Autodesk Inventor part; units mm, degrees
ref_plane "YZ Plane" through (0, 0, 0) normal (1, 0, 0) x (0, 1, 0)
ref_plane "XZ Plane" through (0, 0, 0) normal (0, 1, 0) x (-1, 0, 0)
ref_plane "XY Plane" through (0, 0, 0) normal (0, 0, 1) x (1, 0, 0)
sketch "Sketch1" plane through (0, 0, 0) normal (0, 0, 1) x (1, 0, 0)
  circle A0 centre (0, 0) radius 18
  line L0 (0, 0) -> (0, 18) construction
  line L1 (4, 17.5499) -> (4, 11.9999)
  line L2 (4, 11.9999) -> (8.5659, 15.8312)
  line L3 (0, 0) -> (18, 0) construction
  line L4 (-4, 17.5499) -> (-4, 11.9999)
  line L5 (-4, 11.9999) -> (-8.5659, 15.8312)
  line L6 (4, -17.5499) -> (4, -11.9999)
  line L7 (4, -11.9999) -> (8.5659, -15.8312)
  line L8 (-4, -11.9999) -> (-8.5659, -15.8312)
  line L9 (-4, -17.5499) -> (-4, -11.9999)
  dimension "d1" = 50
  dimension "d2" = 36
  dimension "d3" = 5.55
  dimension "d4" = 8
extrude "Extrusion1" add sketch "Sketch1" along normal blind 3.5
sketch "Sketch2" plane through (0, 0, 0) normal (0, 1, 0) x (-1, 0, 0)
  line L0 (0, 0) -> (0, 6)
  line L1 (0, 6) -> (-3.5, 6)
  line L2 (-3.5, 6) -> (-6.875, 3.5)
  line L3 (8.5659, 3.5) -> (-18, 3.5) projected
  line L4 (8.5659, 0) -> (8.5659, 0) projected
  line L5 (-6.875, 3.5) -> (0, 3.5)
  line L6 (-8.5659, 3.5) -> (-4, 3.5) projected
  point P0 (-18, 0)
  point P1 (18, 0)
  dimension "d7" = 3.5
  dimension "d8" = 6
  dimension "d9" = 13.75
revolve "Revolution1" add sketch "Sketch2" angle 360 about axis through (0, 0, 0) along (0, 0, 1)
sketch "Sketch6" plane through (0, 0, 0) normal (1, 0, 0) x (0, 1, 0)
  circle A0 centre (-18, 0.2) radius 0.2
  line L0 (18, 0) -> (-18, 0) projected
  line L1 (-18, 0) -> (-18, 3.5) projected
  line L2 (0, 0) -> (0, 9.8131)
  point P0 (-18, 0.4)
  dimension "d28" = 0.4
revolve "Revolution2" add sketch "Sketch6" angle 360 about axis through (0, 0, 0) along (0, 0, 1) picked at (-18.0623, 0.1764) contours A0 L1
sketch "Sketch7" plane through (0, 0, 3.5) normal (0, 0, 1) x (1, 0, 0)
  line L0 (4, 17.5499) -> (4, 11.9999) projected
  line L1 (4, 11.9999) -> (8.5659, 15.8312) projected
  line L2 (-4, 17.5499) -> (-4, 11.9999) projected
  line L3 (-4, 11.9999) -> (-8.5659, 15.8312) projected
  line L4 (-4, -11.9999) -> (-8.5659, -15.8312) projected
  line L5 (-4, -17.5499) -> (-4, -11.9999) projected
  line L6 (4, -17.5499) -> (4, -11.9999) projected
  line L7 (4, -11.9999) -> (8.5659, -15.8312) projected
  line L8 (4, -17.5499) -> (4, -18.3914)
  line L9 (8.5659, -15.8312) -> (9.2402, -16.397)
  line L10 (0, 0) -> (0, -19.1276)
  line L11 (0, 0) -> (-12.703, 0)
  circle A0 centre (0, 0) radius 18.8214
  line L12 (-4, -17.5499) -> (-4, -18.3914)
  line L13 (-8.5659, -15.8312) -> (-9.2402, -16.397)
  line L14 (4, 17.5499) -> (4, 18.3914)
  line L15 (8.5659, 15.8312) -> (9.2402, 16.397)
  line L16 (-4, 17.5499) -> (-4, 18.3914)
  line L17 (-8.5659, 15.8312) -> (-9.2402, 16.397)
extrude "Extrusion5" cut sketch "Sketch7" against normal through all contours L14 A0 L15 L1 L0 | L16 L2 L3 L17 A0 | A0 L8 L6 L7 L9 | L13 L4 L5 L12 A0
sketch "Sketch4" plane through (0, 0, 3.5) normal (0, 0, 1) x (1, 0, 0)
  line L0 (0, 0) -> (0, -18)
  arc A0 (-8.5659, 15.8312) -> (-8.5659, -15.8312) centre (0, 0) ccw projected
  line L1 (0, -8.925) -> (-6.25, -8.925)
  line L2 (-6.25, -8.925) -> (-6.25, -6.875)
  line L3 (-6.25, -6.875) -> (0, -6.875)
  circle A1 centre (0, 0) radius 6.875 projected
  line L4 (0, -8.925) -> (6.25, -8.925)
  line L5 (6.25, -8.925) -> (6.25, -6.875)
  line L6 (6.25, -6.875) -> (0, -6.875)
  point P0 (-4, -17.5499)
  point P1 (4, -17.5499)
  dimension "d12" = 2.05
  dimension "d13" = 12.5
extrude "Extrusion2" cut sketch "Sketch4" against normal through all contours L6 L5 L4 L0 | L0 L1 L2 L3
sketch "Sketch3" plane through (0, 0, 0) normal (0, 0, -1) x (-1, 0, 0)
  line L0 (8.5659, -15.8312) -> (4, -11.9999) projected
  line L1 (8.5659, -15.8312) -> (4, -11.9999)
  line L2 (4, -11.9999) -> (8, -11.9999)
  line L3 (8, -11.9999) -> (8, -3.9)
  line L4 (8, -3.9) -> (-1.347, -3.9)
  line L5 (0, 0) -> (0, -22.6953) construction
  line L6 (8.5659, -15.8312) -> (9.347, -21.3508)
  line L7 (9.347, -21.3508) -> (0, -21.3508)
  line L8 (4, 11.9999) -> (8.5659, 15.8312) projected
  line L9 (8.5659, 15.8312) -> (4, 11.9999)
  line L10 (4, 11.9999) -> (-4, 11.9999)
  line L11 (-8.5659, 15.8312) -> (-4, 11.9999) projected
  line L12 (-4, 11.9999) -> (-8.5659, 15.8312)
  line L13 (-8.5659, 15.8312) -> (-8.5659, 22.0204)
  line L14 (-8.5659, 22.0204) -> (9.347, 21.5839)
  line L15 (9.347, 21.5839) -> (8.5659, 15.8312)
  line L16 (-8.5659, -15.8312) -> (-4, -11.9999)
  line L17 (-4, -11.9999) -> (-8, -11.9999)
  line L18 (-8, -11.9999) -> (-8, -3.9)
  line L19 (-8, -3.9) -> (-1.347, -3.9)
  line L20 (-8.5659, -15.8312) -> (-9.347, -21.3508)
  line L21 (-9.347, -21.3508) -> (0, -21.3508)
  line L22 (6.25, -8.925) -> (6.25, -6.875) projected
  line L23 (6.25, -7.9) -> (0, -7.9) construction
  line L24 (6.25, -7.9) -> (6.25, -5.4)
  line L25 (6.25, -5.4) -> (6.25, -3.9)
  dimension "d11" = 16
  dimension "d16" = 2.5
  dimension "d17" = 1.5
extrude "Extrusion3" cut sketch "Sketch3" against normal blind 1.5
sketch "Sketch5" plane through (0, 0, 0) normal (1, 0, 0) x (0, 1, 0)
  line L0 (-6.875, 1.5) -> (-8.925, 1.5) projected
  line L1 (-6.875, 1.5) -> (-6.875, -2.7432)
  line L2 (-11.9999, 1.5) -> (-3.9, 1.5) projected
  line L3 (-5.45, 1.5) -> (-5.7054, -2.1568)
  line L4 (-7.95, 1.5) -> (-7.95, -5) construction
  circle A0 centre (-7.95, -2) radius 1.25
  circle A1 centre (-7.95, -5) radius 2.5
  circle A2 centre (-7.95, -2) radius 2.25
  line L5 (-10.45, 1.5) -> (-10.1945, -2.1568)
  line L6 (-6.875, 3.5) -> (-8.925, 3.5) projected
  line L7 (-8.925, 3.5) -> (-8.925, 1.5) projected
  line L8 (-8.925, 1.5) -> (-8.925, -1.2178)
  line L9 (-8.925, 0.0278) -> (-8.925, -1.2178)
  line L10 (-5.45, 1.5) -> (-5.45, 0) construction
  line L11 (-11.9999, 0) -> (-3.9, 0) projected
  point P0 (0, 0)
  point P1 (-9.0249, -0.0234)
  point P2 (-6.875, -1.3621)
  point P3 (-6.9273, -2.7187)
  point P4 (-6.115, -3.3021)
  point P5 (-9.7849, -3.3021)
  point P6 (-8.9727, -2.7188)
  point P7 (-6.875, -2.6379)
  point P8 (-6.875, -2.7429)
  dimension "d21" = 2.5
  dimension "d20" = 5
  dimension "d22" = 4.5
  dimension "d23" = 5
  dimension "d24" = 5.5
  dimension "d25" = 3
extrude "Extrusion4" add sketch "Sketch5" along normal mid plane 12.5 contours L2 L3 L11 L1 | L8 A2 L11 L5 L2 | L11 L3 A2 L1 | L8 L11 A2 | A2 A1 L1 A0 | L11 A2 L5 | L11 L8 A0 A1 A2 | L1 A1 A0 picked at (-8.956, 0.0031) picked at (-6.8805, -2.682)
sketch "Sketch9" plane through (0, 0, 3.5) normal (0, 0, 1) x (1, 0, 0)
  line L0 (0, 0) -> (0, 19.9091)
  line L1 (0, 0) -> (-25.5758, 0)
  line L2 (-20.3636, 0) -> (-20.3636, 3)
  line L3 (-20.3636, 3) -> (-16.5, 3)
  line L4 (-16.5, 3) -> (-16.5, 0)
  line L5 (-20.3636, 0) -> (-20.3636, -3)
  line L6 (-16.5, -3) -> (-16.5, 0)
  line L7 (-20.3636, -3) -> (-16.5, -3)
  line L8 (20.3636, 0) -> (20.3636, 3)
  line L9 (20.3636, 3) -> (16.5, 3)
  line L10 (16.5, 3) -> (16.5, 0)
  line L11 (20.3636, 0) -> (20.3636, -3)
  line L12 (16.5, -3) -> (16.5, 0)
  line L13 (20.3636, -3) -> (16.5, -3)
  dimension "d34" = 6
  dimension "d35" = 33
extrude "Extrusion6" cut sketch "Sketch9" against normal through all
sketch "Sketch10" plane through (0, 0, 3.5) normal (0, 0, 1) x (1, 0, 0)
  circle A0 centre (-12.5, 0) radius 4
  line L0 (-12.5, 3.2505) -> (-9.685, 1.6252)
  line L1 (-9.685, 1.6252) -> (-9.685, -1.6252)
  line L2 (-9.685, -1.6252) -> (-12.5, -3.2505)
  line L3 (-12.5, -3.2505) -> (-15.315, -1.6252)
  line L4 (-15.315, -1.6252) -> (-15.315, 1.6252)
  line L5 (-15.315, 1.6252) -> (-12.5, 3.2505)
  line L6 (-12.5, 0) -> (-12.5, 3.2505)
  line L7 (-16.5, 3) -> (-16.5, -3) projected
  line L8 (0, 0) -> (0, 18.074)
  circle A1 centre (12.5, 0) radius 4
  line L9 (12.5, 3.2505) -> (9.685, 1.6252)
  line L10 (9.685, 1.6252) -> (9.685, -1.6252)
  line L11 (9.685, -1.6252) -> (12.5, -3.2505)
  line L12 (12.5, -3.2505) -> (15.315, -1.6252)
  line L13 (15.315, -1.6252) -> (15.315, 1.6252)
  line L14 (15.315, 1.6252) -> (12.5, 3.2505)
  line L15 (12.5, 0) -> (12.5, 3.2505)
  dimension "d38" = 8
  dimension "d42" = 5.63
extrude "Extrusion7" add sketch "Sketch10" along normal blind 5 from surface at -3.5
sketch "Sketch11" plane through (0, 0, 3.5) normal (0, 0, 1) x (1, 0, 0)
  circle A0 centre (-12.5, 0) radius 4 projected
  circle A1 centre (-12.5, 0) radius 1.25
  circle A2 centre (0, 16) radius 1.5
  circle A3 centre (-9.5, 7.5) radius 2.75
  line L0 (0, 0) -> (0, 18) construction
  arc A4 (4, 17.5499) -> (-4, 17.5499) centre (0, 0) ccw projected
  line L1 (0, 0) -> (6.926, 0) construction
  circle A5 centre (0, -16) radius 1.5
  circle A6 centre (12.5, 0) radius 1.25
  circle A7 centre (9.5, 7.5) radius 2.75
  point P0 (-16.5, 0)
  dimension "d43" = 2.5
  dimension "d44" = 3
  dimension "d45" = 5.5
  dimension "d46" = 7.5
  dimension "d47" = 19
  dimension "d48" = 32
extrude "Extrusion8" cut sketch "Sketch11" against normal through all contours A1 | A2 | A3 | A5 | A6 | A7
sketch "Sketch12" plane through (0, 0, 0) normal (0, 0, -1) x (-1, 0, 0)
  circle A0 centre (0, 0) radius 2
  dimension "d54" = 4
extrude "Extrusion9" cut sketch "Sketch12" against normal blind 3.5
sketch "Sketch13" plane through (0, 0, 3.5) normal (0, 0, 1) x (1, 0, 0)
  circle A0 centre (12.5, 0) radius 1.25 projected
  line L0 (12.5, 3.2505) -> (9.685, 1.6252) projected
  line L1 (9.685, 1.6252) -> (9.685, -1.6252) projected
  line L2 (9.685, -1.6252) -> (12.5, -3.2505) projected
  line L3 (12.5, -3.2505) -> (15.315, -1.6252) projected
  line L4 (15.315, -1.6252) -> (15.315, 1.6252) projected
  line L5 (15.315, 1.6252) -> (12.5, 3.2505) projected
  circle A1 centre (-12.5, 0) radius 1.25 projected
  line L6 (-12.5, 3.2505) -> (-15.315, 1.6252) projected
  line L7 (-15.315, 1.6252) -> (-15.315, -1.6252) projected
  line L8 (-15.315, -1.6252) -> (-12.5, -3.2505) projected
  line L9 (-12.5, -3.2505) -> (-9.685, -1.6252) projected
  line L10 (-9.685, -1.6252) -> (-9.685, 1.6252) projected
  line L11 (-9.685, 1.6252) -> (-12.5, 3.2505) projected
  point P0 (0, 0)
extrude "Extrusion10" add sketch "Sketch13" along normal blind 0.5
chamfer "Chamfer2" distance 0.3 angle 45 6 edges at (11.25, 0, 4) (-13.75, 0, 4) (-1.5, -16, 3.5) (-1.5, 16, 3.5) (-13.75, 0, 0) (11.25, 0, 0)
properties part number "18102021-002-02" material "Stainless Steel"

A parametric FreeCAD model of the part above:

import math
import FreeCAD as App
import Part
import Sketcher

V = App.Vector
Q = App.Units.Quantity


def edges_at(feature, points):
    """Names of the edges that pass closest to the given points."""
    edges = feature.Shape.Edges
    near = lambda p: min(range(len(edges)), key=lambda i: edges[i].distToShape(Part.Vertex(*p))[0])
    return sorted({f"Edge{near(p) + 1}" for p in points})


def add_polygon(sketch, points):
    """Adds a closed chain of lines whose ends are joined by coincident constraints."""
    first, n = sketch.GeometryCount, len(points)
    for a, b in zip(points, points[1:] + points[:1]):
        sketch.addGeometry(Part.LineSegment(App.Vector(*a, 0), App.Vector(*b, 0)), False)
    for i in range(n):
        sketch.addConstraint(Sketcher.Constraint("Coincident", first + i, 2, first + (i + 1) % n, 1))

doc = App.newDocument("Part")
params = doc.addObject("Spreadsheet::Sheet", "Params")
for row, (alias, value) in enumerate([
    ("sketch1_diameter", "36 mm"),
    ("pad1_length", "3.5 mm"),
    ("sketch2_width", "3.5 mm"),
    ("sketch2_length", "4.2 mm"),
    ("revolution_angle", "360 deg"),
    ("sketch3_radius", "0.2 mm"),
    ("revolution2_angle", "360 deg"),
    ("sketch5_width", "12.5 mm"),
    ("sketch5_height", "2.05 mm"),
    ("sketch6_width", "16 mm"),
    ("sketch6_width2", "4 mm"),
    ("sketch6_height", "8.1 mm"),
    ("pocket3_length", "1.5 mm"),
    ("sketch7_radius", "2.5 mm"),
    ("sketch7_radius2", "1.25 mm"),
    ("sketch7_radius3", "2.25 mm"),
    ("pad2_length", "12.5 mm"),
    ("sketch8_height", "6 mm"),
    ("sketch9_diameter", "8 mm"),
    ("pad3_length", "5 mm"),
    ("sketch10_diameter", "3 mm"),
    ("sketch10_diameter2", "2.5 mm"),
    ("sketch10_diameter3", "5.5 mm"),
    ("sketch11_diameter", "4 mm"),
    ("pocket6_length", "3.5 mm"),
    ("sketch12_diameter", "2.5 mm"),
    ("pad4_length", "0.5 mm"),
    ("chamfer_size", "0.3 mm"),
], start=1):
    params.set(f"A{row}", alias)
    params.set(f"B{row}", "=" + value)
    params.setAlias(f"B{row}", alias)

body = doc.addObject("PartDesign::Body", "Body")

# Sketch on XY plane
sketch1 = body.newObject("Sketcher::SketchObject", "Sketch")
sketch1.AttachmentSupport = (doc.getObject("XY_Plane"), [""])
sketch1.MapMode = "FlatFace"
sketch1.addGeometry(Part.Circle(V(0, 0, 0), V(0, 0, 1), 18), False)
sketch1.addConstraint(Sketcher.Constraint("Coincident", 0, 3, -1, 1))
sketch1.addConstraint(Sketcher.Constraint("Diameter", 0, Q("36 mm")))
sketch1.setExpression("Constraints[1]", "Params.sketch1_diameter")
pad1 = body.newObject("PartDesign::Pad", "Pad")
pad1.Profile = sketch1
pad1.setExpression("Length", "Params.pad1_length")

# Sketch on XZ plane
sketch2 = body.newObject("Sketcher::SketchObject", "Sketch001")
sketch2.AttachmentSupport = (doc.getObject("XZ_Plane"), [""])
sketch2.MapMode = "FlatFace"
add_polygon(sketch2, [(6.9, 3.5), (0, 3.5), (0, 6), (3.5, 6)])  # lines 0-3
sketch2.addConstraint(Sketcher.Constraint("Horizontal", 0))
sketch2.addConstraint(Sketcher.Constraint("Vertical", 1))
sketch2.addConstraint(Sketcher.Constraint("Horizontal", 2))
sketch2.addConstraint(Sketcher.Constraint("PointOnObject", 0, 2, -2))
sketch2.addConstraint(Sketcher.Constraint("DistanceX", 2, 1, 2, 2, Q("3.5 mm")))
sketch2.addConstraint(Sketcher.Constraint("DistanceY", -1, 1, 1, 2, Q("6 mm")))
sketch2.addConstraint(Sketcher.Constraint("DistanceY", -1, 1, 0, 2, Q("3.5 mm")))
sketch2.addConstraint(Sketcher.Constraint("Distance", 3, Q("4.2 mm")))
sketch2.setExpression("Constraints[8]", "Params.sketch2_width")
sketch2.setExpression("Constraints[11]", "Params.sketch2_length")
revolution = body.newObject("PartDesign::Revolution", "Revolution")
revolution.Profile = sketch2
revolution.ReferenceAxis = (sketch2, ["V_Axis"])
revolution.setExpression("Angle", "Params.revolution_angle")

# Sketch on YZ plane
sketch3 = body.newObject("Sketcher::SketchObject", "Sketch002")
sketch3.AttachmentSupport = (doc.getObject("YZ_Plane"), [""])
sketch3.MapMode = "FlatFace"
sketch3.addGeometry(Part.ArcOfCircle(Part.Circle(V(-18, 0.2, 0), V(0, 0, 1), 0.2), math.radians(90), math.radians(270)), False)
sketch3.addGeometry(Part.LineSegment(V(-18, 0, 0), V(-18, 0.4, 0)), False)
sketch3.addConstraint(Sketcher.Constraint("Coincident", 0, 1, 1, 2))
sketch3.addConstraint(Sketcher.Constraint("Coincident", 1, 1, 0, 2))
sketch3.addConstraint(Sketcher.Constraint("Vertical", 1))
sketch3.addConstraint(Sketcher.Constraint("PointOnObject", 1, 1, -1))
sketch3.addConstraint(Sketcher.Constraint("Radius", 0, Q("0.2 mm")))
sketch3.addConstraint(Sketcher.Constraint("DistanceX", 0, 3, -1, 1, Q("18 mm")))
sketch3.addConstraint(Sketcher.Constraint("DistanceX", 0, 1, -1, 1, Q("18 mm")))
sketch3.setExpression("Constraints[4]", "Params.sketch3_radius")
revolution2 = body.newObject("PartDesign::Revolution", "Revolution001")
revolution2.Profile = sketch3
revolution2.ReferenceAxis = (sketch3, ["V_Axis"])
revolution2.setExpression("Angle", "Params.revolution2_angle")

# Sketch on XY plane
sketch4 = body.newObject("Sketcher::SketchObject", "Sketch003")
sketch4.AttachmentSupport = (doc.getObject("XY_Plane"), [""])
sketch4.MapMode = "FlatFace"
sketch4.AttachmentOffset = App.Placement(V(0, 0, 3.5), App.Rotation())
sketch4.addGeometry(Part.LineSegment(V(4, 18.4, 0), V(4, 12, 0)), False)
sketch4.addGeometry(Part.LineSegment(V(4, 12, 0), V(8.6, 15.8, 0)), False)
sketch4.addGeometry(Part.LineSegment(V(8.6, 15.8, 0), V(9.2, 16.4, 0)), False)
sketch4.addGeometry(Part.ArcOfCircle(Part.Circle(V(0, 0, 0), V(0, 0, 1), 18.8), math.radians(60.6), math.radians(77.73)), False)
sketch4.addGeometry(Part.LineSegment(V(-4, 12, 0), V(-4, 18.4, 0)), False)
sketch4.addGeometry(Part.ArcOfCircle(Part.Circle(V(0, 0, 0), V(0, 0, 1), 18.8), math.radians(102.27), math.radians(119.4)), False)
sketch4.addGeometry(Part.LineSegment(V(-9.2, 16.4, 0), V(-8.6, 15.8, 0)), False)
sketch4.addGeometry(Part.LineSegment(V(-8.6, 15.8, 0), V(-4, 12, 0)), False)
sketch4.addGeometry(Part.ArcOfCircle(Part.Circle(V(0, 0, 0), V(0, 0, 1), 18.8), math.radians(-77.73), math.radians(-60.6)), False)
sketch4.addGeometry(Part.LineSegment(V(9.2, -16.4, 0), V(8.6, -15.8, 0)), False)
sketch4.addGeometry(Part.LineSegment(V(8.6, -15.8, 0), V(4, -12, 0)), False)
sketch4.addGeometry(Part.LineSegment(V(4, -12, 0), V(4, -18.4, 0)), False)
sketch4.addGeometry(Part.LineSegment(V(-8.6, -15.8, 0), V(-9.2, -16.4, 0)), False)
sketch4.addGeometry(Part.ArcOfCircle(Part.Circle(V(0, 0, 0), V(0, 0, 1), 18.8), math.radians(-119.4), math.radians(-102.27)), False)
sketch4.addGeometry(Part.LineSegment(V(-4, -18.4, 0), V(-4, -12, 0)), False)
sketch4.addGeometry(Part.LineSegment(V(-4, -12, 0), V(-8.6, -15.8, 0)), False)
sketch4.addConstraint(Sketcher.Constraint("Coincident", 0, 2, 1, 1))
sketch4.addConstraint(Sketcher.Constraint("Coincident", 1, 2, 2, 1))
sketch4.addConstraint(Sketcher.Constraint("Coincident", 2, 2, 3, 1))
sketch4.addConstraint(Sketcher.Constraint("Coincident", 3, 2, 0, 1))
sketch4.addConstraint(Sketcher.Constraint("Coincident", 4, 2, 5, 1))
sketch4.addConstraint(Sketcher.Constraint("Coincident", 5, 2, 6, 1))
sketch4.addConstraint(Sketcher.Constraint("Coincident", 6, 2, 7, 1))
sketch4.addConstraint(Sketcher.Constraint("Coincident", 7, 2, 4, 1))
sketch4.addConstraint(Sketcher.Constraint("Coincident", 8, 2, 9, 1))
sketch4.addConstraint(Sketcher.Constraint("Coincident", 9, 2, 10, 1))
sketch4.addConstraint(Sketcher.Constraint("Coincident", 10, 2, 11, 1))
sketch4.addConstraint(Sketcher.Constraint("Coincident", 11, 2, 8, 1))
sketch4.addConstraint(Sketcher.Constraint("Coincident", 12, 2, 13, 1))
sketch4.addConstraint(Sketcher.Constraint("Coincident", 13, 2, 14, 1))
sketch4.addConstraint(Sketcher.Constraint("Coincident", 14, 2, 15, 1))
sketch4.addConstraint(Sketcher.Constraint("Coincident", 15, 2, 12, 1))
sketch4.addConstraint(Sketcher.Constraint("Vertical", 0))
sketch4.addConstraint(Sketcher.Constraint("Vertical", 4))
sketch4.addConstraint(Sketcher.Constraint("Vertical", 11))
sketch4.addConstraint(Sketcher.Constraint("Vertical", 14))
sketch4.addConstraint(Sketcher.Constraint("Coincident", 3, 3, -1, 1))
sketch4.addConstraint(Sketcher.Constraint("Coincident", 5, 3, -1, 1))
sketch4.addConstraint(Sketcher.Constraint("Coincident", 8, 3, -1, 1))
sketch4.addConstraint(Sketcher.Constraint("Coincident", 13, 3, -1, 1))
sketch4.addConstraint(Sketcher.Constraint("Equal", 3, 5))
sketch4.addConstraint(Sketcher.Constraint("Equal", 5, 8))
sketch4.addConstraint(Sketcher.Constraint("Equal", 8, 13))
sketch4.addConstraint(Sketcher.Constraint("Symmetric", 6, 2, 9, 2, -1, 1))
sketch4.addConstraint(Sketcher.Constraint("Symmetric", 7, 2, 10, 2, -1, 1))
sketch4.addConstraint(Sketcher.Constraint("Symmetric", 0, 2, 14, 2, -1, 1))
sketch4.addConstraint(Sketcher.Constraint("Symmetric", 1, 2, 15, 2, -1, 1))
sketch4.addConstraint(Sketcher.Constraint("Symmetric", 1, 2, 6, 2, -2))
sketch4.addConstraint(Sketcher.Constraint("Symmetric", 0, 2, 7, 2, -2))
sketch4.addConstraint(Sketcher.Constraint("Parallel", 1, 2))
sketch4.addConstraint(Sketcher.Constraint("Parallel", 6, 7))
sketch4.addConstraint(Sketcher.Constraint("Parallel", 7, 9))
sketch4.addConstraint(Sketcher.Constraint("Parallel", 2, 12))
sketch4.addConstraint(Sketcher.Constraint("Angle", 1, Q("40.0004 deg")))
sketch4.addConstraint(Sketcher.Constraint("DistanceX", -1, 1, 0, 2, Q("4 mm")))
sketch4.addConstraint(Sketcher.Constraint("DistanceY", -1, 1, 0, 2, Q("12 mm")))
sketch4.addConstraint(Sketcher.Constraint("Radius", 3, Q("18.8214 mm")))
sketch4.addConstraint(Sketcher.Constraint("DistanceX", -1, 1, 1, 2, Q("8.566 mm")))
pocket1 = body.newObject("PartDesign::Pocket", "Pocket")
pocket1.Profile = sketch4
pocket1.Type = "ThroughAll"

# Sketch on XY plane
sketch5 = body.newObject("Sketcher::SketchObject", "Sketch004")
sketch5.AttachmentSupport = (doc.getObject("XY_Plane"), [""])
sketch5.MapMode = "FlatFace"
sketch5.AttachmentOffset = App.Placement(V(0, 0, 3.5), App.Rotation())
add_polygon(sketch5, [(6.2, -6.9), (-6.2, -6.9), (-6.2, -8.9), (6.2, -8.9)])  # lines 0-3
sketch5.addConstraint(Sketcher.Constraint("Horizontal", 0))
sketch5.addConstraint(Sketcher.Constraint("Vertical", 1))
sketch5.addConstraint(Sketcher.Constraint("Horizontal", 2))
sketch5.addConstraint(Sketcher.Constraint("Vertical", 3))
sketch5.addConstraint(Sketcher.Constraint("DistanceX", 0, 2, 0, 1, Q("12.5 mm")))
sketch5.addConstraint(Sketcher.Constraint("DistanceY", 1, 2, 1, 1, Q("2.05 mm")))
sketch5.addConstraint(Sketcher.Constraint("DistanceX", 0, 2, -1, 1, Q("6.25 mm")))
sketch5.addConstraint(Sketcher.Constraint("DistanceY", 0, 2, -1, 1, Q("6.875 mm")))
sketch5.setExpression("Constraints[8]", "Params.sketch5_width")
sketch5.setExpression("Constraints[9]", "Params.sketch5_height")
pocket2 = body.newObject("PartDesign::Pocket", "Pocket001")
pocket2.Profile = sketch5
pocket2.Type = "ThroughAll"

# Sketch on XY plane
sketch6 = body.newObject("Sketcher::SketchObject", "Sketch005")
sketch6.AttachmentSupport = (doc.getObject("XY_Plane"), [""])
sketch6.MapMode = "FlatFace"
add_polygon(sketch6, [(-9.3, -21.4), (-8.6, -15.8), (-4, -12), (-8, -12), (-8, -3.9), (8, -3.9), (8, -12), (4, -12), (8.6, -15.8), (9.3, -21.4)])  # lines 0-9
add_polygon(sketch6, [(4, 12), (-4, 12), (-8.6, 15.8), (-9.3, 21.6), (8.6, 22), (8.6, 15.8)])  # lines 10-15
sketch6.addConstraint(Sketcher.Constraint("Horizontal", 2))
sketch6.addConstraint(Sketcher.Constraint("Vertical", 3))
sketch6.addConstraint(Sketcher.Constraint("Horizontal", 4))
sketch6.addConstraint(Sketcher.Constraint("Vertical", 5))
sketch6.addConstraint(Sketcher.Constraint("Horizontal", 6))
sketch6.addConstraint(Sketcher.Constraint("Horizontal", 9))
sketch6.addConstraint(Sketcher.Constraint("Horizontal", 10))
sketch6.addConstraint(Sketcher.Constraint("Vertical", 14))
sketch6.addConstraint(Sketcher.Constraint("Symmetric", 6, 2, 10, 2, -1, 1))
sketch6.addConstraint(Sketcher.Constraint("Symmetric", 7, 2, 11, 2, -1, 1))
sketch6.addConstraint(Sketcher.Constraint("Symmetric", 0, 2, 14, 2, -1, 1))
sketch6.addConstraint(Sketcher.Constraint("Symmetric", 1, 2, 15, 2, -1, 1))
sketch6.addConstraint(Sketcher.Constraint("Symmetric", 0, 2, 7, 2, -2))
sketch6.addConstraint(Sketcher.Constraint("Vertical", 1, 2, 10, 2))
sketch6.addConstraint(Sketcher.Constraint("Vertical", 9, 2, 12, 2))
sketch6.addConstraint(Sketcher.Constraint("Equal", 2, 6))
sketch6.addConstraint(Sketcher.Constraint("Equal", 0, 8))
sketch6.addConstraint(Sketcher.Constraint("DistanceX", 4, 1, 4, 2, Q("16 mm")))
sketch6.addConstraint(Sketcher.Constraint("DistanceX", 2, 2, 2, 1, Q("4 mm")))
sketch6.addConstraint(Sketcher.Constraint("Angle", 1, Q("40.0004 deg")))
sketch6.addConstraint(Sketcher.Constraint("DistanceY", 3, 1, 3, 2, Q("8.1 mm")))
sketch6.addConstraint(Sketcher.Constraint("DistanceY", 1, 2, -1, 1, Q("12 mm")))
sketch6.addConstraint(Sketcher.Constraint("DistanceX", 9, 2, 9, 1, Q("18.694 mm")))
sketch6.addConstraint(Sketcher.Constraint("DistanceY", 14, 2, 14, 1, Q("6.1892 mm")))
sketch6.addConstraint(Sketcher.Constraint("DistanceX", 0, 2, -1, 1, Q("8.566 mm")))
sketch6.addConstraint(Sketcher.Constraint("DistanceY", -1, 1, 12, 2, Q("21.584 mm")))
sketch6.addConstraint(Sketcher.Constraint("DistanceY", 8, 2, 5, 2, Q("9.351 mm")))
sketch6.setExpression("Constraints[33]", "Params.sketch6_width")
sketch6.setExpression("Constraints[34]", "Params.sketch6_width2")
sketch6.setExpression("Constraints[36]", "Params.sketch6_height")
pocket3 = body.newObject("PartDesign::Pocket", "Pocket002")
pocket3.Profile = sketch6
pocket3.setExpression("Length", "Params.pocket3_length")
pocket3.Reversed = True

# Sketch on YZ plane
sketch7 = body.newObject("Sketcher::SketchObject", "Sketch006")
sketch7.AttachmentSupport = (doc.getObject("YZ_Plane"), [""])
sketch7.MapMode = "FlatFace"
sketch7.addGeometry(Part.LineSegment(V(-5.5, 1.5, 0), V(-6.9, 1.5, 0)), False)
sketch7.addGeometry(Part.LineSegment(V(-6.9, 1.5, 0), V(-6.9, -1.4, 0)), False)
sketch7.addGeometry(Part.ArcOfCircle(Part.Circle(V(-8, -2, 0), V(0, 0, 1), 1.2), math.radians(-35), math.radians(31)), False)
sketch7.addGeometry(Part.ArcOfCircle(Part.Circle(V(-8, -5, 0), V(0, 0, 1), 2.5), math.radians(43), math.radians(66)), False)
sketch7.addGeometry(Part.ArcOfCircle(Part.Circle(V(-8, -2, 0), V(0, 0, 1), 2.2), math.radians(-35), math.radians(-4)), False)
sketch7.addGeometry(Part.LineSegment(V(-5.7, -2.2, 0), V(-5.5, 1.5, 0)), False)
sketch7.addGeometry(Part.LineSegment(V(-8.9, 1.5, 0), V(-10.4, 1.5, 0)), False)
sketch7.addGeometry(Part.LineSegment(V(-10.4, 1.5, 0), V(-10.2, -2.2, 0)), False)
sketch7.addGeometry(Part.ArcOfCircle(Part.Circle(V(-8, -2, 0), V(0, 0, 1), 2.2), math.radians(-176), math.radians(-145)), False)
sketch7.addGeometry(Part.ArcOfCircle(Part.Circle(V(-8, -5, 0), V(0, 0, 1), 2.5), math.radians(114), math.radians(137)), False)
sketch7.addGeometry(Part.ArcOfCircle(Part.Circle(V(-8, -2, 0), V(0, 0, 1), 1.2), math.radians(141), math.radians(215)), False)
sketch7.addGeometry(Part.LineSegment(V(-8.9, -1.2, 0), V(-8.9, 1.5, 0)), False)
sketch7.addConstraint(Sketcher.Constraint("Coincident", 0, 2, 1, 1))
sketch7.addConstraint(Sketcher.Constraint("Coincident", 1, 2, 2, 2))
sketch7.addConstraint(Sketcher.Constraint("Coincident", 2, 1, 3, 2))
sketch7.addConstraint(Sketcher.Constraint("Coincident", 3, 1, 4, 1))
sketch7.addConstraint(Sketcher.Constraint("Tangent", 4, 2, 5, 1))
sketch7.addConstraint(Sketcher.Constraint("Coincident", 5, 2, 0, 1))
sketch7.addConstraint(Sketcher.Constraint("Coincident", 6, 2, 7, 1))
sketch7.addConstraint(Sketcher.Constraint("Tangent", 7, 2, 8, 1))
sketch7.addConstraint(Sketcher.Constraint("Coincident", 8, 2, 9, 2))
sketch7.addConstraint(Sketcher.Constraint("Coincident", 9, 1, 10, 2))
sketch7.addConstraint(Sketcher.Constraint("Coincident", 10, 1, 11, 1))
sketch7.addConstraint(Sketcher.Constraint("Coincident", 11, 2, 6, 1))
sketch7.addConstraint(Sketcher.Constraint("Horizontal", 0))
sketch7.addConstraint(Sketcher.Constraint("Vertical", 1))
sketch7.addConstraint(Sketcher.Constraint("Horizontal", 6))
sketch7.addConstraint(Sketcher.Constraint("Vertical", 11))
sketch7.addConstraint(Sketcher.Constraint("Coincident", 4, 3, 2, 3))
sketch7.addConstraint(Sketcher.Constraint("Coincident", 8, 3, 2, 3))
sketch7.addConstraint(Sketcher.Constraint("Coincident", 9, 3, 3, 3))
sketch7.addConstraint(Sketcher.Constraint("Coincident", 10, 3, 2, 3))
sketch7.addConstraint(Sketcher.Constraint("Equal", 4, 8))
sketch7.addConstraint(Sketcher.Constraint("Equal", 3, 9))
sketch7.addConstraint(Sketcher.Constraint("Equal", 2, 10))
sketch7.addConstraint(Sketcher.Constraint("Horizontal", 5, 2, 6, 2))
sketch7.addConstraint(Sketcher.Constraint("Horizontal", 4, 2, 7, 2))
sketch7.addConstraint(Sketcher.Constraint("Horizontal", 3, 1, 8, 2))
sketch7.addConstraint(Sketcher.Constraint("Radius", 3, Q("2.5 mm")))
sketch7.addConstraint(Sketcher.Constraint("Radius", 2, Q("1.25 mm")))
sketch7.addConstraint(Sketcher.Constraint("Radius", 4, Q("2.25 mm")))
sketch7.addConstraint(Sketcher.Constraint("DistanceY", 3, 3, -1, 1, Q("5 mm")))
sketch7.addConstraint(Sketcher.Constraint("DistanceY", 3, 3, 2, 3, Q("3 mm")))
sketch7.addConstraint(Sketcher.Constraint("DistanceX", 2, 3, 5, 2, Q("2.5 mm")))
sketch7.addConstraint(Sketcher.Constraint("DistanceY", -1, 1, 0, 2, Q("1.5 mm")))
sketch7.addConstraint(Sketcher.Constraint("DistanceX", 0, 2, 0, 1, Q("1.425 mm")))
sketch7.addConstraint(Sketcher.Constraint("DistanceX", 6, 2, 6, 1, Q("1.525 mm")))
sketch7.addConstraint(Sketcher.Constraint("DistanceX", 2, 3, -1, 1, Q("7.95 mm")))
sketch7.setExpression("Constraints[26]", "Params.sketch7_radius")
sketch7.setExpression("Constraints[27]", "Params.sketch7_radius2")
sketch7.setExpression("Constraints[28]", "Params.sketch7_radius3")
pad2 = body.newObject("PartDesign::Pad", "Pad001")
pad2.Profile = sketch7
pad2.setExpression("Length", "Params.pad2_length")
pad2.Midplane = True

# Sketch on XY plane
sketch8 = body.newObject("Sketcher::SketchObject", "Sketch007")
sketch8.AttachmentSupport = (doc.getObject("XY_Plane"), [""])
sketch8.MapMode = "FlatFace"
sketch8.AttachmentOffset = App.Placement(V(0, 0, 3.5), App.Rotation())
add_polygon(sketch8, [(-16.5, -3), (-16.5, 3), (-20.4, 3), (-20.4, -3)])  # lines 0-3
add_polygon(sketch8, [(20.4, -3), (20.4, 3), (16.5, 3), (16.5, -3)])  # lines 4-7
sketch8.addConstraint(Sketcher.Constraint("Vertical", 0))
sketch8.addConstraint(Sketcher.Constraint("Horizontal", 1))
sketch8.addConstraint(Sketcher.Constraint("Vertical", 2))
sketch8.addConstraint(Sketcher.Constraint("Horizontal", 3))
sketch8.addConstraint(Sketcher.Constraint("Vertical", 4))
sketch8.addConstraint(Sketcher.Constraint("Horizontal", 5))
sketch8.addConstraint(Sketcher.Constraint("Vertical", 6))
sketch8.addConstraint(Sketcher.Constraint("Horizontal", 7))
sketch8.addConstraint(Sketcher.Constraint("Symmetric", 2, 2, 4, 2, -1, 1))
sketch8.addConstraint(Sketcher.Constraint("Symmetric", 0, 2, 6, 2, -1, 1))
sketch8.addConstraint(Sketcher.Constraint("Horizontal", 1, 2, 4, 2))
sketch8.addConstraint(Sketcher.Constraint("DistanceY", 0, 1, 0, 2, Q("6 mm")))
sketch8.addConstraint(Sketcher.Constraint("DistanceX", 0, 2, 5, 2, Q("33 mm")))
sketch8.addConstraint(Sketcher.Constraint("DistanceX", 1, 2, 1, 1, Q("3.8636 mm")))
sketch8.setExpression("Constraints[19]", "Params.sketch8_height")
pocket4 = body.newObject("PartDesign::Pocket", "Pocket003")
pocket4.Profile = sketch8
pocket4.Type = "ThroughAll"

# Sketch on XY plane
sketch9 = body.newObject("Sketcher::SketchObject", "Sketch008")
sketch9.AttachmentSupport = (doc.getObject("XY_Plane"), [""])
sketch9.MapMode = "FlatFace"
sketch9.addGeometry(Part.Circle(V(-12.5, 0, 0), V(0, 0, 1), 4), False)  # 0
add_polygon(sketch9, [(-15.3, 1.6), (-12.5, 3.3), (-9.7, 1.6), (-9.7, -1.6), (-12.5, -3.3), (-15.3, -1.6)])  # lines 1-6
sketch9.addGeometry(Part.Circle(V(12.5, 0, 0), V(0, 0, 1), 4), False)  # 7
add_polygon(sketch9, [(9.7, 1.6), (12.5, 3.3), (15.3, 1.6), (15.3, -1.6), (12.5, -3.3), (9.7, -1.6)])  # lines 8-13
sketch9.addConstraint(Sketcher.Constraint("Vertical", 3))
sketch9.addConstraint(Sketcher.Constraint("Vertical", 6))
sketch9.addConstraint(Sketcher.Constraint("Vertical", 10))
sketch9.addConstraint(Sketcher.Constraint("Vertical", 13))
sketch9.addConstraint(Sketcher.Constraint("Equal", 0, 7))
sketch9.addConstraint(Sketcher.Constraint("Symmetric", 0, 3, 7, 3, -1, 1))
sketch9.addConstraint(Sketcher.Constraint("Symmetric", 4, 2, 8, 2, -1, 1))
sketch9.addConstraint(Sketcher.Constraint("Symmetric", 5, 2, 9, 2, -1, 1))
sketch9.addConstraint(Sketcher.Constraint("Symmetric", 1, 2, 11, 2, -1, 1))
sketch9.addConstraint(Sketcher.Constraint("Symmetric", 2, 2, 12, 2, -1, 1))
sketch9.addConstraint(Sketcher.Constraint("Symmetric", 1, 2, 8, 2, -2))
sketch9.addConstraint(Sketcher.Constraint("PointOnObject", 0, 3, -1))
sketch9.addConstraint(Sketcher.Constraint("Parallel", 1, 4))
sketch9.addConstraint(Sketcher.Constraint("Parallel", 2, 5))
sketch9.addConstraint(Sketcher.Constraint("Parallel", 4, 8))
sketch9.addConstraint(Sketcher.Constraint("Parallel", 8, 11))
sketch9.addConstraint(Sketcher.Constraint("Horizontal", 3, 2, 5, 2))
sketch9.addConstraint(Sketcher.Constraint("Horizontal", 2, 2, 6, 2))
sketch9.addConstraint(Sketcher.Constraint("Vertical", 0, 3, 1, 2))
sketch9.addConstraint(Sketcher.Constraint("Diameter", 0, Q("8 mm")))
sketch9.addConstraint(Sketcher.Constraint("Angle", 1, Q("30.001 deg")))
sketch9.addConstraint(Sketcher.Constraint("DistanceX", 5, 2, 3, 2, Q("5.63 mm")))
sketch9.addConstraint(Sketcher.Constraint("DistanceX", 0, 3, 7, 3, Q("25 mm")))
sketch9.addConstraint(Sketcher.Constraint("DistanceY", 3, 2, 3, 1, Q("3.2504 mm")))
sketch9.setExpression("Constraints[31]", "Params.sketch9_diameter")
pad3 = body.newObject("PartDesign::Pad", "Pad002")
pad3.Profile = sketch9
pad3.setExpression("Length", "Params.pad3_length")

# Sketch on XY plane
sketch10 = body.newObject("Sketcher::SketchObject", "Sketch009")
sketch10.AttachmentSupport = (doc.getObject("XY_Plane"), [""])
sketch10.MapMode = "FlatFace"
sketch10.AttachmentOffset = App.Placement(V(0, 0, 3.5), App.Rotation())
sketch10.addGeometry(Part.Circle(V(-12.5, 0, 0), V(0, 0, 1), 1.2), False)
sketch10.addGeometry(Part.Circle(V(0, 16, 0), V(0, 0, 1), 1.5), False)
sketch10.addGeometry(Part.Circle(V(-9.5, 7.5, 0), V(0, 0, 1), 2.8), False)
sketch10.addGeometry(Part.Circle(V(0, -16, 0), V(0, 0, 1), 1.5), False)
sketch10.addGeometry(Part.Circle(V(12.5, 0, 0), V(0, 0, 1), 1.2), False)
sketch10.addGeometry(Part.Circle(V(9.5, 7.5, 0), V(0, 0, 1), 2.8), False)
sketch10.addConstraint(Sketcher.Constraint("Equal", 1, 3))
sketch10.addConstraint(Sketcher.Constraint("Equal", 0, 4))
sketch10.addConstraint(Sketcher.Constraint("Equal", 2, 5))
sketch10.addConstraint(Sketcher.Constraint("Symmetric", 1, 3, 3, 3, -1, 1))
sketch10.addConstraint(Sketcher.Constraint("Symmetric", 0, 3, 4, 3, -1, 1))
sketch10.addConstraint(Sketcher.Constraint("Symmetric", 2, 3, 5, 3, -2))
sketch10.addConstraint(Sketcher.Constraint("PointOnObject", 0, 3, -1))
sketch10.addConstraint(Sketcher.Constraint("PointOnObject", 1, 3, -2))
sketch10.addConstraint(Sketcher.Constraint("Diameter", 1, Q("3 mm")))
sketch10.addConstraint(Sketcher.Constraint("Diameter", 0, Q("2.5 mm")))
sketch10.addConstraint(Sketcher.Constraint("Diameter", 2, Q("5.5 mm")))
sketch10.addConstraint(Sketcher.Constraint("DistanceX", 0, 3, 2, 3, Q("3 mm")))
sketch10.addConstraint(Sketcher.Constraint("DistanceY", 3, 3, 1, 3, Q("32 mm")))
sketch10.addConstraint(Sketcher.Constraint("DistanceX", 2, 3, 5, 3, Q("19 mm")))
sketch10.addConstraint(Sketcher.Constraint("DistanceY", -1, 1, 2, 3, Q("7.5 mm")))
sketch10.setExpression("Constraints[8]", "Params.sketch10_diameter")
sketch10.setExpression("Constraints[9]", "Params.sketch10_diameter2")
sketch10.setExpression("Constraints[10]", "Params.sketch10_diameter3")
pocket5 = body.newObject("PartDesign::Pocket", "Pocket004")
pocket5.Profile = sketch10
pocket5.Type = "ThroughAll"

# Sketch on XY plane
sketch11 = body.newObject("Sketcher::SketchObject", "Sketch010")
sketch11.AttachmentSupport = (doc.getObject("XY_Plane"), [""])
sketch11.MapMode = "FlatFace"
sketch11.addGeometry(Part.Circle(V(0, 0, 0), V(0, 0, 1), 2), False)
sketch11.addConstraint(Sketcher.Constraint("Coincident", 0, 3, -1, 1))
sketch11.addConstraint(Sketcher.Constraint("Diameter", 0, Q("4 mm")))
sketch11.setExpression("Constraints[1]", "Params.sketch11_diameter")
pocket6 = body.newObject("PartDesign::Pocket", "Pocket005")
pocket6.Profile = sketch11
pocket6.setExpression("Length", "Params.pocket6_length")
pocket6.Reversed = True

# Sketch on XY plane
sketch12 = body.newObject("Sketcher::SketchObject", "Sketch011")
sketch12.AttachmentSupport = (doc.getObject("XY_Plane"), [""])
sketch12.MapMode = "FlatFace"
sketch12.AttachmentOffset = App.Placement(V(0, 0, 3.5), App.Rotation())
add_polygon(sketch12, [(15.3, 1.6), (12.5, 3.3), (9.7, 1.6), (9.7, -1.6), (12.5, -3.3), (15.3, -1.6)])  # lines 0-5
sketch12.addGeometry(Part.Circle(V(12.5, 0, 0), V(0, 0, 1), 1.2), False)  # 6
add_polygon(sketch12, [(-9.7, 1.6), (-12.5, 3.3), (-15.3, 1.6), (-15.3, -1.6), (-12.5, -3.3), (-9.7, -1.6)])  # lines 7-12
sketch12.addGeometry(Part.Circle(V(-12.5, 0, 0), V(0, 0, 1), 1.2), False)  # 13
sketch12.addConstraint(Sketcher.Constraint("Vertical", 2))
sketch12.addConstraint(Sketcher.Constraint("Vertical", 5))
sketch12.addConstraint(Sketcher.Constraint("Vertical", 9))
sketch12.addConstraint(Sketcher.Constraint("Vertical", 12))
sketch12.addConstraint(Sketcher.Constraint("Equal", 6, 13))
sketch12.addConstraint(Sketcher.Constraint("Symmetric", 6, 3, 13, 3, -1, 1))
sketch12.addConstraint(Sketcher.Constraint("Symmetric", 3, 2, 7, 2, -1, 1))
sketch12.addConstraint(Sketcher.Constraint("Symmetric", 4, 2, 8, 2, -1, 1))
sketch12.addConstraint(Sketcher.Constraint("Symmetric", 0, 2, 10, 2, -1, 1))
sketch12.addConstraint(Sketcher.Constraint("Symmetric", 1, 2, 11, 2, -1, 1))
sketch12.addConstraint(Sketcher.Constraint("Symmetric", 0, 2, 7, 2, -2))
sketch12.addConstraint(Sketcher.Constraint("PointOnObject", 6, 3, -1))
sketch12.addConstraint(Sketcher.Constraint("Parallel", 0, 3))
sketch12.addConstraint(Sketcher.Constraint("Parallel", 1, 4))
sketch12.addConstraint(Sketcher.Constraint("Parallel", 3, 7))
sketch12.addConstraint(Sketcher.Constraint("Parallel", 7, 10))
sketch12.addConstraint(Sketcher.Constraint("Horizontal", 2, 2, 4, 2))
sketch12.addConstraint(Sketcher.Constraint("Horizontal", 1, 2, 5, 2))
sketch12.addConstraint(Sketcher.Constraint("Vertical", 6, 3, 0, 2))
sketch12.addConstraint(Sketcher.Constraint("Diameter", 6, Q("2.5 mm")))
sketch12.addConstraint(Sketcher.Constraint("Angle", 0, Q("149.999 deg")))
sketch12.addConstraint(Sketcher.Constraint("DistanceX", 13, 3, 6, 3, Q("25 mm")))
sketch12.addConstraint(Sketcher.Constraint("DistanceX", 2, 2, 4, 2, Q("5.63 mm")))
sketch12.addConstraint(Sketcher.Constraint("DistanceY", 2, 2, 2, 1, Q("3.2504 mm")))
sketch12.setExpression("Constraints[31]", "Params.sketch12_diameter")
pad4 = body.newObject("PartDesign::Pad", "Pad003")
pad4.Profile = sketch12
pad4.setExpression("Length", "Params.pad4_length")
doc.recompute()

chamfer = body.newObject("PartDesign::Chamfer", "Chamfer")
chamfer.Base = (pad4, edges_at(pad4, [
    (11.25, 0, 4),
    (-13.75, 0, 4),
    (-1.5, -16, 3.5),
    (-1.5, 16, 3.5),
    (-13.75, 0, 0),
    (11.25, 0, 0),
]))
chamfer.setExpression("Size", "Params.chamfer_size")

doc.recompute()
